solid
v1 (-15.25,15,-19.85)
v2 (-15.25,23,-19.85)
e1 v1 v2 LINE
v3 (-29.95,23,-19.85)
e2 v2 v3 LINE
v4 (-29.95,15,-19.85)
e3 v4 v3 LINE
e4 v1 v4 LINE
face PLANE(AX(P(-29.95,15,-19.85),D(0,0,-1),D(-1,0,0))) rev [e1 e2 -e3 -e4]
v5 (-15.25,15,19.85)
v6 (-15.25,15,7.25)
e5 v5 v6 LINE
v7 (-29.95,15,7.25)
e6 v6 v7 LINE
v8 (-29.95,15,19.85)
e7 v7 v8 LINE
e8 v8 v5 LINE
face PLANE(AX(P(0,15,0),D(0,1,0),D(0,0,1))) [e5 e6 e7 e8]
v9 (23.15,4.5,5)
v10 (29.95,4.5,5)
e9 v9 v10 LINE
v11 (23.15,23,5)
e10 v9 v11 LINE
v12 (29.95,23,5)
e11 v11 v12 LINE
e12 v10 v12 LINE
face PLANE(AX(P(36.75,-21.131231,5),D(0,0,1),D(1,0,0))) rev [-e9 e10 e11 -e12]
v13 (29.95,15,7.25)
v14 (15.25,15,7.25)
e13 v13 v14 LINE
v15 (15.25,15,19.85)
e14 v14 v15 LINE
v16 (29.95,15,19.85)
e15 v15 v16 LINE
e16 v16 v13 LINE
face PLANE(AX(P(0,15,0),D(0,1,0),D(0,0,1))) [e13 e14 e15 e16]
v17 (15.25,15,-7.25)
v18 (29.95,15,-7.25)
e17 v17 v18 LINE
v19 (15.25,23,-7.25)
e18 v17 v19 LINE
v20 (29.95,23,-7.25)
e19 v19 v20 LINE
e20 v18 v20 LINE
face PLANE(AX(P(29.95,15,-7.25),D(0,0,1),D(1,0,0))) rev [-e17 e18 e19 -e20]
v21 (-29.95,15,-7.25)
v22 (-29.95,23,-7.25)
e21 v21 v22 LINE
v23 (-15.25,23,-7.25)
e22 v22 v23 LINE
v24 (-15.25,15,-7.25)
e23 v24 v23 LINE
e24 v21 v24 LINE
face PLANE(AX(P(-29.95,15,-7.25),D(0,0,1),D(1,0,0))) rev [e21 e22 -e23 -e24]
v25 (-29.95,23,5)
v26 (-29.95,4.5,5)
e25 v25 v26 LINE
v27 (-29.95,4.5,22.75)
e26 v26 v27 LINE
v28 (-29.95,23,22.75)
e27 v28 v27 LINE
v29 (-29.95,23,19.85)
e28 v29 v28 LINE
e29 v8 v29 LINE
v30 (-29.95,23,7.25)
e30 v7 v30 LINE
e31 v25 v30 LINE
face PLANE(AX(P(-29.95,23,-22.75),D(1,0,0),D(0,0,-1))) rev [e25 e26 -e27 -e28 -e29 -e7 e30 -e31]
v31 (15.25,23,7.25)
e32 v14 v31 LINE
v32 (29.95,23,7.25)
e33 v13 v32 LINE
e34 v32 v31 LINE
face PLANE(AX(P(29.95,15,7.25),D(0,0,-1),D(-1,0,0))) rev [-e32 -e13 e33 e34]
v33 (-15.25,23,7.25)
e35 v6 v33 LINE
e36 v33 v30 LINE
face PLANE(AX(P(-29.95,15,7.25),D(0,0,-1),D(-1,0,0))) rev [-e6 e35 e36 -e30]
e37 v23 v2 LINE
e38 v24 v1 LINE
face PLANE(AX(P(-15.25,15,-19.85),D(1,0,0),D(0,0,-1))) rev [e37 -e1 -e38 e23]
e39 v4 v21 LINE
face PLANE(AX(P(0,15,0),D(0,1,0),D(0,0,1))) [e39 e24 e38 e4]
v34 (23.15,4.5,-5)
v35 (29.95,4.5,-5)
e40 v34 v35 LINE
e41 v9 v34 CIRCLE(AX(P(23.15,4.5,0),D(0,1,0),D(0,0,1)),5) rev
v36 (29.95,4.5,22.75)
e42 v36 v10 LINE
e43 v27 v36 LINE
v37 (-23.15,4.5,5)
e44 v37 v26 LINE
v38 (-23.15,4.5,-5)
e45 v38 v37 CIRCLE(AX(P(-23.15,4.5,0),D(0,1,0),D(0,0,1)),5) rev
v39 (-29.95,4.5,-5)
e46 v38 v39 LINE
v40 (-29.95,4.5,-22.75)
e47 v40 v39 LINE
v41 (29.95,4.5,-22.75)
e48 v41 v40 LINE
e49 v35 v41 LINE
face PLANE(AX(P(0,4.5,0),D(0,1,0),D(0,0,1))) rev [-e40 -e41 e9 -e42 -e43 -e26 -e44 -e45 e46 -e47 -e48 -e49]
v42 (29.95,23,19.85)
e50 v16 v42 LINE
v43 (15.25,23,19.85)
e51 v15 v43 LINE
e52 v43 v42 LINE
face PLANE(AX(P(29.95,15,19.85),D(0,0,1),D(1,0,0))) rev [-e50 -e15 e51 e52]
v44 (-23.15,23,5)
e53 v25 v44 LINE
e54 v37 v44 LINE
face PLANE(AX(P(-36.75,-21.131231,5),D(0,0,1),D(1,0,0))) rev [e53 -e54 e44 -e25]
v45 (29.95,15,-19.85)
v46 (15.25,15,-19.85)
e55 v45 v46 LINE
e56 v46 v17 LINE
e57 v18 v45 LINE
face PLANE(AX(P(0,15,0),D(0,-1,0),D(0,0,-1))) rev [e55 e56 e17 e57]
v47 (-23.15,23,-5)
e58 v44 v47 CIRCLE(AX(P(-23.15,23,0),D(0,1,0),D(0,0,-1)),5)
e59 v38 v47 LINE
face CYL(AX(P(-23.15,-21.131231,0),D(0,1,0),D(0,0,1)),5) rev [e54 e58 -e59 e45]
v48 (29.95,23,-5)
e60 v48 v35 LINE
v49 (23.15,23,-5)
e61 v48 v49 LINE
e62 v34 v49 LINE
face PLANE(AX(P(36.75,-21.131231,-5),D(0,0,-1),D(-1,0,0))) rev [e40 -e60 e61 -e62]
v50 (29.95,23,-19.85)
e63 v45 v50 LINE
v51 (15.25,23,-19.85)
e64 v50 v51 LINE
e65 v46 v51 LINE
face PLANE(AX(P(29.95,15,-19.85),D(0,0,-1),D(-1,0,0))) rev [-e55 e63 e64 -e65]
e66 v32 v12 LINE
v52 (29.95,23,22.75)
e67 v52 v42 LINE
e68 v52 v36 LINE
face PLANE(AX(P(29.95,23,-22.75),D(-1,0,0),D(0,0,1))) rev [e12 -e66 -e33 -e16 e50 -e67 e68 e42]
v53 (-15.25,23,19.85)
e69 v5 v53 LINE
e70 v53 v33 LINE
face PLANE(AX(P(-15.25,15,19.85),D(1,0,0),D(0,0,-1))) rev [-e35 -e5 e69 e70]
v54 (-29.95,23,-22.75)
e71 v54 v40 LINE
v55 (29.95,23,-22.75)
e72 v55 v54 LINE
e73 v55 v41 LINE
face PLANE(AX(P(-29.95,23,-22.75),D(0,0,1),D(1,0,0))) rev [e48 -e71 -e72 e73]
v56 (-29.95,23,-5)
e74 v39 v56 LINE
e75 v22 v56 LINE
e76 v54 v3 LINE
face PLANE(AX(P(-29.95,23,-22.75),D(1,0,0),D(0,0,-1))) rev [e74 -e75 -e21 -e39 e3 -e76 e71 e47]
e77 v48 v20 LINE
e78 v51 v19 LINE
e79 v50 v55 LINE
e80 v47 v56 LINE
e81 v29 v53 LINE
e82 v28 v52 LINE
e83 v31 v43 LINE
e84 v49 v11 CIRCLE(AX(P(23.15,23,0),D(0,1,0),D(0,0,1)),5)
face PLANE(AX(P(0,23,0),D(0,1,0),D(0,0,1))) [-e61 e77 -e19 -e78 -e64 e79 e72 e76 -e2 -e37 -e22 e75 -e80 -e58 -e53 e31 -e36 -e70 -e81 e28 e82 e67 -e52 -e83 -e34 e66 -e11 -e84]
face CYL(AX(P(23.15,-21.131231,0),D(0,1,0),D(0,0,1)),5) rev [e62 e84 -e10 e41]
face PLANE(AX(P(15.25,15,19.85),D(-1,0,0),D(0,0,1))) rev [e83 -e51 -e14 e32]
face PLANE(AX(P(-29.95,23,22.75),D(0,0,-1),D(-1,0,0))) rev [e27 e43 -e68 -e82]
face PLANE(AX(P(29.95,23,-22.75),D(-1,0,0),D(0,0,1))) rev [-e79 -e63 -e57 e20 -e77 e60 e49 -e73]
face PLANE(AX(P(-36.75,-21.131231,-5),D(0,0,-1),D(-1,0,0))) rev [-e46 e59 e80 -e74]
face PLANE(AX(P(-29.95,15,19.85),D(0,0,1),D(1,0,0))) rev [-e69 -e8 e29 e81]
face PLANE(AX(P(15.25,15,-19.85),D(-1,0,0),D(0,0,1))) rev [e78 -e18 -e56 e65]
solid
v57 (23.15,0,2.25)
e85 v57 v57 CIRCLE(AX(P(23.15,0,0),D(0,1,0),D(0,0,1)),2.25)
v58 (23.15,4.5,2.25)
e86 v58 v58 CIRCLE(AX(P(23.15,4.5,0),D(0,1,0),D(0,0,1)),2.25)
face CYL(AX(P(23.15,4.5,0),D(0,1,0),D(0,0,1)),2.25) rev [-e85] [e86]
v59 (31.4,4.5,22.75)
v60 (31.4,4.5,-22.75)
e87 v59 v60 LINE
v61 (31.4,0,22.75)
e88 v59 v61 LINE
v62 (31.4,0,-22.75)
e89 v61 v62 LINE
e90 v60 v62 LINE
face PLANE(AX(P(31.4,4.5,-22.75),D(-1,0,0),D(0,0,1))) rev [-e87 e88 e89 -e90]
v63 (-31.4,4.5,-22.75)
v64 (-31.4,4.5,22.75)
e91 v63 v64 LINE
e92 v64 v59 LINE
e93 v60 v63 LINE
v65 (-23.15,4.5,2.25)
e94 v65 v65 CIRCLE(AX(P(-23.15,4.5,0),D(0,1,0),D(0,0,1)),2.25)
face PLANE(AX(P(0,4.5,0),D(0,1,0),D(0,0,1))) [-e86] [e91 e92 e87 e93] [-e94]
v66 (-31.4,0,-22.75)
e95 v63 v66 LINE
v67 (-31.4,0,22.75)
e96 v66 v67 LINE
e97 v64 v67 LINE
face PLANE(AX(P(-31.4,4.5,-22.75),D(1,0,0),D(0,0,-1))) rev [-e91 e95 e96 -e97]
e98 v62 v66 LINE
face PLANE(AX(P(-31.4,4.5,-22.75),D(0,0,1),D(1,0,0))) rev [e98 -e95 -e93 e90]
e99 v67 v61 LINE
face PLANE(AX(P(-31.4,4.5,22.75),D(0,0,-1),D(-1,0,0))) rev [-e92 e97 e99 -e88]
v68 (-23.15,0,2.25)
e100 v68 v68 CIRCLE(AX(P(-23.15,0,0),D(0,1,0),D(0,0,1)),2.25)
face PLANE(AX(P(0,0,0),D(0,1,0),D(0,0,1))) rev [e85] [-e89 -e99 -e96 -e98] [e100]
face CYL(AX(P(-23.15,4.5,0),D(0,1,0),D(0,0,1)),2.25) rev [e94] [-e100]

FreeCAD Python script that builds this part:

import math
import FreeCAD as App
import Part
import Sketcher


def add_polygon(sketch, points):
    """Adds a closed chain of lines whose ends are joined by coincident constraints."""
    first, n = sketch.GeometryCount, len(points)
    for a, b in zip(points, points[1:] + points[:1]):
        sketch.addGeometry(Part.LineSegment(App.Vector(*a, 0), App.Vector(*b, 0)), False)
    for i in range(n):
        sketch.addConstraint(Sketcher.Constraint("Coincident", first + i, 2, first + (i + 1) % n, 1))

doc = App.newDocument("Part")
params = doc.addObject("Spreadsheet::Sheet", "Params")
for row, (alias, value) in enumerate([
    ("sketch1_width", "62.8 mm"),
    ("sketch1_height", "45.5 mm"),
    ("pad1_length", "4.5 mm"),
    ("sketch2_width", "4.5 mm"),
    ("sketch2_height", "2.25 mm"),
    ("groove_angle", "360 deg"),
    ("linearpattern_pitch", "46.3 mm"),
    ("sketch3_width", "59.9 mm"),
    ("sketch3_height", "45.5 mm"),
    ("pad2_length", "18.5 mm"),
    ("sketch4_radius", "5 mm"),
    ("sketch4_width", "13.6 mm"),
    ("pocket1_length", "18.5 mm"),
    ("sketch5_width", "14.7 mm"),
    ("sketch5_height", "12.6 mm"),
    ("pocket2_length", "8 mm"),
], start=1):
    params.set(f"A{row}", alias)
    params.set(f"B{row}", "=" + value)
    params.setAlias(f"B{row}", alias)

body = doc.addObject("PartDesign::Body", "Body")

sketch1 = body.newObject("Sketcher::SketchObject", "Sketch")
sketch1.AttachmentSupport = (doc.getObject("XZ_Plane"), [""])
sketch1.MapMode = "FlatFace"
add_polygon(sketch1, [(-31.4, -22.75), (-31.4, 22.75), (31.4, 22.75), (31.4, -22.75)])
sketch1.addConstraint(Sketcher.Constraint("Vertical", 0))
sketch1.addConstraint(Sketcher.Constraint("Horizontal", 1))
sketch1.addConstraint(Sketcher.Constraint("Vertical", 2))
sketch1.addConstraint(Sketcher.Constraint("Horizontal", 3))
sketch1.addConstraint(Sketcher.Constraint("Symmetric", 0, 2, 2, 2, -1, 1))
sketch1.addConstraint(Sketcher.Constraint("DistanceX", 1, 1, 1, 2, 62.8))
sketch1.addConstraint(Sketcher.Constraint("DistanceY", 0, 1, 0, 2, 45.5))
sketch1.setExpression("Constraints[9]", "Params.sketch1_width")
sketch1.setExpression("Constraints[10]", "Params.sketch1_height")
pad1 = body.newObject("PartDesign::Pad", "Pad")
pad1.Profile = sketch1
pad1.setExpression("Length", "Params.pad1_length")
pad1.Reversed = True

sketch2 = body.newObject("Sketcher::SketchObject", "Sketch001")
sketch2.AttachmentSupport = (doc.getObject("YZ_Plane"), [""])
sketch2.MapMode = "FlatFace"
sketch2.AttachmentOffset = App.Placement(App.Vector(0, 0, 23.15), App.Rotation())
add_polygon(sketch2, [(0, 0), (4.5, 0), (4.5, 2.25), (0, 2.25)])
sketch2.addConstraint(Sketcher.Constraint("Horizontal", 0))
sketch2.addConstraint(Sketcher.Constraint("Vertical", 1))
sketch2.addConstraint(Sketcher.Constraint("Horizontal", 2))
sketch2.addConstraint(Sketcher.Constraint("Vertical", 3))
sketch2.addConstraint(Sketcher.Constraint("Coincident", 3, 2, -1, 1))
sketch2.addConstraint(Sketcher.Constraint("DistanceX", 0, 1, 0, 2, 4.5))
sketch2.addConstraint(Sketcher.Constraint("DistanceY", 1, 1, 1, 2, 2.25))
sketch2.setExpression("Constraints[9]", "Params.sketch2_width")
sketch2.setExpression("Constraints[10]", "Params.sketch2_height")
groove = body.newObject("PartDesign::Groove", "Groove")
groove.Profile = sketch2
groove.ReferenceAxis = (sketch2, ["H_Axis"])
groove.setExpression("Angle", "Params.groove_angle")
doc.recompute()

linearpattern = body.newObject("PartDesign::LinearPattern", "LinearPattern")
linearpattern.Originals = [groove]
linearpattern.Direction = (doc.getObject("X_Axis"), [""])
linearpattern.Mode = "offset"
linearpattern.setExpression("Offset", "Params.linearpattern_pitch")
linearpattern.Occurrences = 2
linearpattern.Reversed = True
body.Tip = linearpattern
body2 = doc.addObject("PartDesign::Body", "Body001")

sketch3 = body2.newObject("Sketcher::SketchObject", "Sketch002")
sketch3.AttachmentSupport = (doc.getObject("XZ_Plane001"), [""])
sketch3.MapMode = "FlatFace"
sketch3.AttachmentOffset = App.Placement(App.Vector(0, 0, -4.5), App.Rotation())
add_polygon(sketch3, [(-29.95, -22.75), (-29.95, 22.75), (29.95, 22.75), (29.95, -22.75)])
sketch3.addConstraint(Sketcher.Constraint("Vertical", 0))
sketch3.addConstraint(Sketcher.Constraint("Horizontal", 1))
sketch3.addConstraint(Sketcher.Constraint("Vertical", 2))
sketch3.addConstraint(Sketcher.Constraint("Horizontal", 3))
sketch3.addConstraint(Sketcher.Constraint("Symmetric", 0, 2, 2, 2, -1, 1))
sketch3.addConstraint(Sketcher.Constraint("DistanceX", 1, 1, 1, 2, 59.9))
sketch3.addConstraint(Sketcher.Constraint("DistanceY", 0, 1, 0, 2, 45.5))
sketch3.setExpression("Constraints[9]", "Params.sketch3_width")
sketch3.setExpression("Constraints[10]", "Params.sketch3_height")
pad2 = body2.newObject("PartDesign::Pad", "Pad001")
pad2.Profile = sketch3
pad2.setExpression("Length", "Params.pad2_length")
pad2.Reversed = True

sketch4 = body2.newObject("Sketcher::SketchObject", "Sketch003")
sketch4.AttachmentSupport = (doc.getObject("XZ_Plane001"), [""])
sketch4.MapMode = "FlatFace"
sketch4.AttachmentOffset = App.Placement(App.Vector(0, 0, -23), App.Rotation())
sketch4.addGeometry(Part.LineSegment(App.Vector(23.15, 5, 0), App.Vector(36.75, 5, 0)), False)
sketch4.addGeometry(Part.ArcOfCircle(Part.Circle(App.Vector(36.75, 0, 0), App.Vector(0, 0, 1), 5), math.radians(-90), math.radians(90)), False)
sketch4.addGeometry(Part.LineSegment(App.Vector(36.75, -5, 0), App.Vector(23.15, -5, 0)), False)
sketch4.addGeometry(Part.ArcOfCircle(Part.Circle(App.Vector(23.15, 0, 0), App.Vector(0, 0, 1), 5), math.radians(90), math.radians(270)), False)
sketch4.addGeometry(Part.LineSegment(App.Vector(-36.75, 5, 0), App.Vector(-23.15, 5, 0)), False)
sketch4.addGeometry(Part.ArcOfCircle(Part.Circle(App.Vector(-23.15, 0, 0), App.Vector(0, 0, 1), 5), math.radians(-90), math.radians(90)), False)
sketch4.addGeometry(Part.LineSegment(App.Vector(-23.15, -5, 0), App.Vector(-36.75, -5, 0)), False)
sketch4.addGeometry(Part.ArcOfCircle(Part.Circle(App.Vector(-36.75, 0, 0), App.Vector(0, 0, 1), 5), math.radians(90), math.radians(270)), False)
sketch4.addConstraint(Sketcher.Constraint("Tangent", 0, 2, 1, 2))
sketch4.addConstraint(Sketcher.Constraint("Tangent", 1, 1, 2, 1))
sketch4.addConstraint(Sketcher.Constraint("Tangent", 2, 2, 3, 2))
sketch4.addConstraint(Sketcher.Constraint("Tangent", 3, 1, 0, 1))
sketch4.addConstraint(Sketcher.Constraint("Tangent", 4, 2, 5, 2))
sketch4.addConstraint(Sketcher.Constraint("Tangent", 5, 1, 6, 1))
sketch4.addConstraint(Sketcher.Constraint("Tangent", 6, 2, 7, 2))
sketch4.addConstraint(Sketcher.Constraint("Tangent", 7, 1, 4, 1))
sketch4.addConstraint(Sketcher.Constraint("Horizontal", 0))
sketch4.addConstraint(Sketcher.Constraint("Horizontal", 2))
sketch4.addConstraint(Sketcher.Constraint("Horizontal", 4))
sketch4.addConstraint(Sketcher.Constraint("Horizontal", 6))
sketch4.addConstraint(Sketcher.Constraint("Equal", 3, 5))
sketch4.addConstraint(Sketcher.Constraint("Symmetric", 3, 3, 5, 3, -1, 1))
sketch4.addConstraint(Sketcher.Constraint("Symmetric", 1, 3, 7, 3, -2))
sketch4.addConstraint(Sketcher.Constraint("Radius", 1, 5.0))
sketch4.addConstraint(Sketcher.Constraint("DistanceX", 0, 1, 0, 2, 13.6))
sketch4.addConstraint(Sketcher.Constraint("DistanceX", 5, 3, 3, 3, 46.3))
sketch4.setExpression("Constraints[15]", "Params.sketch4_radius")
sketch4.setExpression("Constraints[16]", "Params.sketch4_width")
pocket1 = body2.newObject("PartDesign::Pocket", "Pocket")
pocket1.Profile = sketch4
pocket1.setExpression("Length", "Params.pocket1_length")
pocket1.Reversed = True

sketch5 = body2.newObject("Sketcher::SketchObject", "Sketch004")
sketch5.AttachmentSupport = (doc.getObject("XZ_Plane001"), [""])
sketch5.MapMode = "FlatFace"
sketch5.AttachmentOffset = App.Placement(App.Vector(0, 0, -23), App.Rotation())
add_polygon(sketch5, [(15.25, -19.85), (15.25, -7.25), (29.95, -7.25), (29.95, -19.85)])
add_polygon(sketch5, [(-29.95, -19.85), (-29.95, -7.25), (-15.25, -7.25), (-15.25, -19.85)])
add_polygon(sketch5, [(15.25, 7.25), (15.25, 19.85), (29.95, 19.85), (29.95, 7.25)])
add_polygon(sketch5, [(-29.95, 7.25), (-29.95, 19.85), (-15.25, 19.85), (-15.25, 7.25)])
sketch5.addConstraint(Sketcher.Constraint("Vertical", 0))
sketch5.addConstraint(Sketcher.Constraint("Horizontal", 1))
sketch5.addConstraint(Sketcher.Constraint("Vertical", 2))
sketch5.addConstraint(Sketcher.Constraint("Horizontal", 3))
sketch5.addConstraint(Sketcher.Constraint("Vertical", 4))
sketch5.addConstraint(Sketcher.Constraint("Horizontal", 5))
sketch5.addConstraint(Sketcher.Constraint("Vertical", 6))
sketch5.addConstraint(Sketcher.Constraint("Horizontal", 7))
sketch5.addConstraint(Sketcher.Constraint("Vertical", 8))
sketch5.addConstraint(Sketcher.Constraint("Horizontal", 9))
sketch5.addConstraint(Sketcher.Constraint("Vertical", 10))
sketch5.addConstraint(Sketcher.Constraint("Horizontal", 11))
sketch5.addConstraint(Sketcher.Constraint("Vertical", 12))
sketch5.addConstraint(Sketcher.Constraint("Horizontal", 13))
sketch5.addConstraint(Sketcher.Constraint("Vertical", 14))
sketch5.addConstraint(Sketcher.Constraint("Horizontal", 15))
sketch5.addConstraint(Sketcher.Constraint("Symmetric", 6, 2, 8, 2, -1, 1))
sketch5.addConstraint(Sketcher.Constraint("Symmetric", 4, 2, 10, 2, -1, 1))
sketch5.addConstraint(Sketcher.Constraint("Symmetric", 2, 2, 12, 2, -1, 1))
sketch5.addConstraint(Sketcher.Constraint("Symmetric", 0, 2, 14, 2, -1, 1))
sketch5.addConstraint(Sketcher.Constraint("Symmetric", 1, 2, 4, 2, -2))
sketch5.addConstraint(Sketcher.Constraint("Symmetric", 3, 2, 6, 2, -2))
sketch5.addConstraint(Sketcher.Constraint("DistanceX", 1, 1, 1, 2, 14.7))
sketch5.addConstraint(Sketcher.Constraint("DistanceY", 0, 1, 0, 2, 12.6))
sketch5.addConstraint(Sketcher.Constraint("DistanceX", 4, 2, 0, 2, 45.2))
sketch5.addConstraint(Sketcher.Constraint("DistanceY", 0, 2, 8, 2, 27.1))
sketch5.setExpression("Constraints[38]", "Params.sketch5_width")
sketch5.setExpression("Constraints[39]", "Params.sketch5_height")
pocket2 = body2.newObject("PartDesign::Pocket", "Pocket001")
pocket2.Profile = sketch5
pocket2.setExpression("Length", "Params.pocket2_length")
pocket2.Reversed = True

doc.recompute()
